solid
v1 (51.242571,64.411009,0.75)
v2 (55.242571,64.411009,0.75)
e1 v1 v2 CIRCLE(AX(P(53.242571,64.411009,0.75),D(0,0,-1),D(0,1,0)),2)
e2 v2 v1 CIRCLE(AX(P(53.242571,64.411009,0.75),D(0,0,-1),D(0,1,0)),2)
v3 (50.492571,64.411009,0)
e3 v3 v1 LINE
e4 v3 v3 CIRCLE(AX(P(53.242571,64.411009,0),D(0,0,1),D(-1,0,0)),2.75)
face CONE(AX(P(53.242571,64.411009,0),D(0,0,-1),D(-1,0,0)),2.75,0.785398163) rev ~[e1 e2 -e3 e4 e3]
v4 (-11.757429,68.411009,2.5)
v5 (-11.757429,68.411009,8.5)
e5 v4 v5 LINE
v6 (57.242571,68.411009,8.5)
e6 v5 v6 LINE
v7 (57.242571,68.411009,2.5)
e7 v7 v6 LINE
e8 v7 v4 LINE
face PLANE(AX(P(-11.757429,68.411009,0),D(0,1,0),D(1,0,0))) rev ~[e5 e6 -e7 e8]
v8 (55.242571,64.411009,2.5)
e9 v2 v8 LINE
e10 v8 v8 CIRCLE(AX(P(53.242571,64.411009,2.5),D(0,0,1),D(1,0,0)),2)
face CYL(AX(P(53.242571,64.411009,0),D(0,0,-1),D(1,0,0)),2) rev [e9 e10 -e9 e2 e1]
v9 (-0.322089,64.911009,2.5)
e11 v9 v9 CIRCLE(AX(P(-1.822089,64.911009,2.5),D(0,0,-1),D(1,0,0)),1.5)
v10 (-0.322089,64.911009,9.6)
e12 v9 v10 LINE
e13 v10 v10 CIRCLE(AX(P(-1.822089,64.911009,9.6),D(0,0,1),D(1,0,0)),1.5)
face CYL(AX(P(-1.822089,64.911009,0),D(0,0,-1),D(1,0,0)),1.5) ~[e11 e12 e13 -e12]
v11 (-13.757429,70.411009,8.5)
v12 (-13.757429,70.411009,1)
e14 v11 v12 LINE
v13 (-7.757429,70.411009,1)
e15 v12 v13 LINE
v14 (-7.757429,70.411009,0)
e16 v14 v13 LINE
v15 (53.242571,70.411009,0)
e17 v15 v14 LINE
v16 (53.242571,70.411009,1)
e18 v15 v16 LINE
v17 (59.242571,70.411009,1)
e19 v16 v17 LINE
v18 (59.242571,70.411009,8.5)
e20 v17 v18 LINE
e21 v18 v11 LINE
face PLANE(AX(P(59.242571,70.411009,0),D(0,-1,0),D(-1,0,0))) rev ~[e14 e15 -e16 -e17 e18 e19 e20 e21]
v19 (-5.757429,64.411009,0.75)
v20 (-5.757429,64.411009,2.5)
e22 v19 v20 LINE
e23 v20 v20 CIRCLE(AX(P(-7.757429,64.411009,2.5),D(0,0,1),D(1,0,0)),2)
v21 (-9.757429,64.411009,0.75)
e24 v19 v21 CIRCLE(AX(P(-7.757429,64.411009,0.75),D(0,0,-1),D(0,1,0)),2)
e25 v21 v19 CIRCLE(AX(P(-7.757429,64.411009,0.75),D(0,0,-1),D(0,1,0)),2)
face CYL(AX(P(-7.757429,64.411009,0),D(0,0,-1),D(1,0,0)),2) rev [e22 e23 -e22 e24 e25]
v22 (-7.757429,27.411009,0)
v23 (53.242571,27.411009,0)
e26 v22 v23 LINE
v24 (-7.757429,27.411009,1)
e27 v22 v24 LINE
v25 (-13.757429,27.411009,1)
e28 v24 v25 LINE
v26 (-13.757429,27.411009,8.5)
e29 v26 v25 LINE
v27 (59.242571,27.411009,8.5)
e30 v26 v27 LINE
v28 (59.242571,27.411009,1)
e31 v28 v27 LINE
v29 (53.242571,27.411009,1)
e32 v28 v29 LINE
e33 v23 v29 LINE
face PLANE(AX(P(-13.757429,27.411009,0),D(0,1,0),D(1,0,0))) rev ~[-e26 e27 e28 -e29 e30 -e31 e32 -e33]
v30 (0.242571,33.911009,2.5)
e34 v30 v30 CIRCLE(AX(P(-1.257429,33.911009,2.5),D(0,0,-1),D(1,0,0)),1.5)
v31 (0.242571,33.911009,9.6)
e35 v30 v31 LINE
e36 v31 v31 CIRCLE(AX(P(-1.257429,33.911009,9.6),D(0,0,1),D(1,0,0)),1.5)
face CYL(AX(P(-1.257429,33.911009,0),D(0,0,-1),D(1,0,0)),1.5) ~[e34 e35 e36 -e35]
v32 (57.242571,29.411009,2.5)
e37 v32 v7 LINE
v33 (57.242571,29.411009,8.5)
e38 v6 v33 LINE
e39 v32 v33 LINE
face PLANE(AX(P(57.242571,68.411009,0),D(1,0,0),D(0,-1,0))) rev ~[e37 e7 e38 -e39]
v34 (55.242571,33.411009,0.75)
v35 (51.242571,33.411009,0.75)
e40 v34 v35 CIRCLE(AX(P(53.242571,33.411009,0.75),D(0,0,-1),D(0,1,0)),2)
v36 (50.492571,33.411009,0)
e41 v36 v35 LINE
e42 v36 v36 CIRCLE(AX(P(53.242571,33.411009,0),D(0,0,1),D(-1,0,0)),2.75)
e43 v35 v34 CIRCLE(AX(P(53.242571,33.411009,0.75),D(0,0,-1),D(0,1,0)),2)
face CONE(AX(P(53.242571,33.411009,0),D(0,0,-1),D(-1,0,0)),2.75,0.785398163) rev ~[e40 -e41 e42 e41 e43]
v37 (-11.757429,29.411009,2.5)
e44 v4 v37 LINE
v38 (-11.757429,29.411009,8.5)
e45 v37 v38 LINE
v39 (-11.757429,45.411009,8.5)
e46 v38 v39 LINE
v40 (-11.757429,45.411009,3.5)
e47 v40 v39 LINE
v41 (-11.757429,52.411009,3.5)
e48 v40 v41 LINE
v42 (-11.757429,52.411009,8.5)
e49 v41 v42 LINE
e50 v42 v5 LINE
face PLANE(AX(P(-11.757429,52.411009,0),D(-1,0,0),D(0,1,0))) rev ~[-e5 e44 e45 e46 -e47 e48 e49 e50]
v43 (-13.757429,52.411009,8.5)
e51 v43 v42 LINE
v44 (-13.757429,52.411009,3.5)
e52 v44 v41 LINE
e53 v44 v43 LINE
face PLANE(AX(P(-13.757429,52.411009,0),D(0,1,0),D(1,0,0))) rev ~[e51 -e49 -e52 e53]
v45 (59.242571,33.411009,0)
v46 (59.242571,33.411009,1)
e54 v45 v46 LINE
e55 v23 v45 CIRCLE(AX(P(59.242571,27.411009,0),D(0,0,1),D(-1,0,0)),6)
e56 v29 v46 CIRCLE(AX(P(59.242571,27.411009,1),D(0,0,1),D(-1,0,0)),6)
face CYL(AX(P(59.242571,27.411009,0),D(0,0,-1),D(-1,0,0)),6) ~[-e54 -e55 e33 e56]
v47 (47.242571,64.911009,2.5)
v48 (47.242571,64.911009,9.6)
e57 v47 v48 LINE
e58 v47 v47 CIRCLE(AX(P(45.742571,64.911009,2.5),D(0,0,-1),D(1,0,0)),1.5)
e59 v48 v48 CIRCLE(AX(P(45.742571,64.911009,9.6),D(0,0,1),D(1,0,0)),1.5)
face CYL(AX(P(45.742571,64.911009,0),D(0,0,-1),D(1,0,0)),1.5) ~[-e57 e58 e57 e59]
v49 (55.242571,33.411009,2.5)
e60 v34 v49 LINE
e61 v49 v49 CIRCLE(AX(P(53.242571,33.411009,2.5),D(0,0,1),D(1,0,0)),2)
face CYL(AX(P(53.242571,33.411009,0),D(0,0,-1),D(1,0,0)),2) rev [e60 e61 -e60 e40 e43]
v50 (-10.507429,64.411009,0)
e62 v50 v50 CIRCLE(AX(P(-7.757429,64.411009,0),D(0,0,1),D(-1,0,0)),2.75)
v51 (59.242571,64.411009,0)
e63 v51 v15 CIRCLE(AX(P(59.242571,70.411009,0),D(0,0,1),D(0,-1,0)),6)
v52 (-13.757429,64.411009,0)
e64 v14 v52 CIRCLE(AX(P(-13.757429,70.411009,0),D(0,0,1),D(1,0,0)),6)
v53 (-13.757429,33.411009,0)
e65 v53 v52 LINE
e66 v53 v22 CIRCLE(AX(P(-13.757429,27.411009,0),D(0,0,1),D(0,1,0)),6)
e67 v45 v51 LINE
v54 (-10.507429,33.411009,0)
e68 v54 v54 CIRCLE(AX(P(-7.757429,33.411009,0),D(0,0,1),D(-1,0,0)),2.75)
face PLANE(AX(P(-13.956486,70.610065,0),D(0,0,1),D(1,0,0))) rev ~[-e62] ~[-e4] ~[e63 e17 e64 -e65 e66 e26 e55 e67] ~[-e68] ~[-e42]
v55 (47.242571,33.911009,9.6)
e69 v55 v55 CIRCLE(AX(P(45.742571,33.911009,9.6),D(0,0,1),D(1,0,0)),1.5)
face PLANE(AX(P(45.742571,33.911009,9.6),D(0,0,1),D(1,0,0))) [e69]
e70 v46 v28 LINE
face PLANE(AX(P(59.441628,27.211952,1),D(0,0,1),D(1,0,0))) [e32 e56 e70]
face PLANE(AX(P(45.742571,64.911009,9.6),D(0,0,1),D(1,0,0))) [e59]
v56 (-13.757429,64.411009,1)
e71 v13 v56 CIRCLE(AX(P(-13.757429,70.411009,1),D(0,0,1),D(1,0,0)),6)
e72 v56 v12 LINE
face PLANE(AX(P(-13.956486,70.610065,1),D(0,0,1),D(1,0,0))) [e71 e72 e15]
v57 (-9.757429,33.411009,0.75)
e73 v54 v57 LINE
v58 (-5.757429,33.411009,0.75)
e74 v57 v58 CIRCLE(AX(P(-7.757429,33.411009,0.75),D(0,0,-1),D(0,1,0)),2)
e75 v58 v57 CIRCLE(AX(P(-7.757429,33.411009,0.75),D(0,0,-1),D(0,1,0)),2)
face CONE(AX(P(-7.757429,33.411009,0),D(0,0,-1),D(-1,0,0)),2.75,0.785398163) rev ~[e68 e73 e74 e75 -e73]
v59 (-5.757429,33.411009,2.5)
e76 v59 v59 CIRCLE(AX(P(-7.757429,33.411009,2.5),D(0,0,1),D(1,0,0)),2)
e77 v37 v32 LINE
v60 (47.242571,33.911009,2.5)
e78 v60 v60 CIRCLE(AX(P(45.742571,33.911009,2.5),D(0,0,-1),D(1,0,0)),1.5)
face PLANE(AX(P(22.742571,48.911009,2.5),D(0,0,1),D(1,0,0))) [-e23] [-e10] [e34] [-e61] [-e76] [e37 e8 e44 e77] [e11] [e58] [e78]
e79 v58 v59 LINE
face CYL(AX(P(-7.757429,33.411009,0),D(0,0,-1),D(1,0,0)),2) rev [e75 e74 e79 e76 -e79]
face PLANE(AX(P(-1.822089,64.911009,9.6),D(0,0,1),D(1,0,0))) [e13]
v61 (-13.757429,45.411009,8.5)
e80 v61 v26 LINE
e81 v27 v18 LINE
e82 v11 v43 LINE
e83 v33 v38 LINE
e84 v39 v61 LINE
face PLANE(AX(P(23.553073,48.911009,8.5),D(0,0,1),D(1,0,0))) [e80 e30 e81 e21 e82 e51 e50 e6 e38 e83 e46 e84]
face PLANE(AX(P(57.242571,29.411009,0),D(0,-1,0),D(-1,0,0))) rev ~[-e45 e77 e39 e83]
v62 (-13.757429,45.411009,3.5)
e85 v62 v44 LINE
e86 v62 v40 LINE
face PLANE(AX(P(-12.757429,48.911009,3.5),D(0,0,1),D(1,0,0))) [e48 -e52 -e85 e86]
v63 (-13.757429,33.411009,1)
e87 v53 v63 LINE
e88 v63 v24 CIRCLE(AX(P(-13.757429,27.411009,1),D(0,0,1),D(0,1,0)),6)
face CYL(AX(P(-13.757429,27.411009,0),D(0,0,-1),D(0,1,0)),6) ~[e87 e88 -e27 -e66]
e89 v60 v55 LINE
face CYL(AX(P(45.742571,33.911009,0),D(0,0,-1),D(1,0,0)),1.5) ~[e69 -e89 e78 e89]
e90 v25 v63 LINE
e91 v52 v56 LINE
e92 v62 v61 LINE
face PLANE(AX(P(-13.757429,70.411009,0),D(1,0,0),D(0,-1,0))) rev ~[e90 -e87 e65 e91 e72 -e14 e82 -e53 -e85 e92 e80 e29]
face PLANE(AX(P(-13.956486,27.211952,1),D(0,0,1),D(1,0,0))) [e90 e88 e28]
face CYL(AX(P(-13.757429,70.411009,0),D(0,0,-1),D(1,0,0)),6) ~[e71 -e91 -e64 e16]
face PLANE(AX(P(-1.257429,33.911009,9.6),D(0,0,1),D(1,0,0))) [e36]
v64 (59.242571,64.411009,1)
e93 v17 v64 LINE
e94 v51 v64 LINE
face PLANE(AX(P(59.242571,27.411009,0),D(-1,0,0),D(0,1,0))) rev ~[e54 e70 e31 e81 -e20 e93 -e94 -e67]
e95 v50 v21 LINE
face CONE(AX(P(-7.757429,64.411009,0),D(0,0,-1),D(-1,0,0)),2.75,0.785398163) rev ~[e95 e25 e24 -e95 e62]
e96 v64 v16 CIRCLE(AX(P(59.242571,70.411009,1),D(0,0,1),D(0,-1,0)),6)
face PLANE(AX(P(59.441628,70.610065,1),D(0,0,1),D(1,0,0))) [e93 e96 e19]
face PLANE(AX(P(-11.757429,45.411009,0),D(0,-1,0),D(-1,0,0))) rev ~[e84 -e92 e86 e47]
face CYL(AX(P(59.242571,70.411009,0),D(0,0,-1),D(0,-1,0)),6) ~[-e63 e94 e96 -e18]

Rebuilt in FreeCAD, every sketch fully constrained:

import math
import FreeCAD as App
import Part
import Sketcher


def add_polygon(sketch, points):
    """Adds a closed chain of lines whose ends are joined by coincident constraints."""
    first, n = sketch.GeometryCount, len(points)
    for a, b in zip(points, points[1:] + points[:1]):
        sketch.addGeometry(Part.LineSegment(App.Vector(*a, 0), App.Vector(*b, 0)), False)
    for i in range(n):
        sketch.addConstraint(Sketcher.Constraint("Coincident", first + i, 2, first + (i + 1) % n, 1))

doc = App.newDocument("Part")
body = doc.addObject("PartDesign::Body", "Body")

# Sketch on XY plane
sketch1 = doc.addObject("Sketcher::SketchObject", "Sketch")
body.addObject(sketch1)
sketch1.AttachmentSupport = (doc.XY_Plane, [""])
sketch1.MapMode = "FlatFace"
add_polygon(sketch1, [(-13.757429, 27.411009), (59.242571, 27.411009), (59.242571, 70.411009), (-13.757429, 70.411009)])  # lines 0-3
sketch1.addGeometry(Part.Circle(App.Vector(-7.757429, 33.411009, 0), App.Vector(0, 0, 1), 2), False)  # 4
sketch1.addGeometry(Part.Circle(App.Vector(53.242571, 33.411009, 0), App.Vector(0, 0, 1), 2), False)  # 5
sketch1.addGeometry(Part.Circle(App.Vector(-7.757429, 64.411009, 0), App.Vector(0, 0, 1), 2), False)  # 6
sketch1.addGeometry(Part.Circle(App.Vector(53.242571, 64.411009, 0), App.Vector(0, 0, 1), 2), False)  # 7
sketch1.addConstraint([
    Sketcher.Constraint("Horizontal", 0),
    Sketcher.Constraint("Vertical", 1),
    Sketcher.Constraint("Horizontal", 2),
    Sketcher.Constraint("Vertical", 3),
    Sketcher.Constraint("Equal", 4, 5),
    Sketcher.Constraint("Equal", 5, 6),
    Sketcher.Constraint("Equal", 6, 7),
    Sketcher.Constraint("Horizontal", 4, 3, 5, 3),
    Sketcher.Constraint("Horizontal", 6, 3, 7, 3),
    Sketcher.Constraint("Vertical", 4, 3, 6, 3),
    Sketcher.Constraint("Vertical", 5, 3, 7, 3),
    Sketcher.Constraint("Diameter", 4, 4.0),
    Sketcher.Constraint("DistanceX", 0, 1, 0, 2, 73.0),
    Sketcher.Constraint("DistanceY", 1, 1, 1, 2, 43.0),
    Sketcher.Constraint("DistanceX", 4, 3, 5, 3, 61.0),
    Sketcher.Constraint("DistanceY", 4, 3, 6, 3, 31.0),
    Sketcher.Constraint("DistanceX", 5, 3, 0, 2, 6.0),
    Sketcher.Constraint("DistanceY", 0, 2, 5, 3, 6.0),
    Sketcher.Constraint("DistanceX", 4, 3, -1, 1, 7.757429),
    Sketcher.Constraint("DistanceY", -1, 1, 4, 3, 33.411009),
])
pad1 = doc.addObject("PartDesign::Pad", "Pad")
body.addObject(pad1)
pad1.Profile = sketch1
pad1.Length = 2.5

# Sketch on XY plane
sketch2 = doc.addObject("Sketcher::SketchObject", "Sketch001")
body.addObject(sketch2)
sketch2.AttachmentSupport = (doc.XY_Plane, [""])
sketch2.MapMode = "FlatFace"
add_polygon(sketch2, [(-11.757429, 52.411009), (-11.757429, 68.411009), (57.242571, 68.411009), (57.242571, 29.411009), (-11.757429, 29.411009), (-11.757429, 45.411009), (-13.757429, 45.411009), (-13.757429, 27.411009), (59.242571, 27.411009), (59.242571, 70.411009), (-13.757429, 70.411009), (-13.757429, 52.411009)])  # lines 0-11
sketch2.addConstraint([
    Sketcher.Constraint("Vertical", 0),
    Sketcher.Constraint("Horizontal", 1),
    Sketcher.Constraint("Vertical", 2),
    Sketcher.Constraint("Horizontal", 3),
    Sketcher.Constraint("Vertical", 4),
    Sketcher.Constraint("Horizontal", 5),
    Sketcher.Constraint("Vertical", 6),
    Sketcher.Constraint("Horizontal", 7),
    Sketcher.Constraint("Vertical", 8),
    Sketcher.Constraint("Horizontal", 9),
    Sketcher.Constraint("Vertical", 10),
    Sketcher.Constraint("Horizontal", 11),
    Sketcher.Constraint("Vertical", 0, 2, 3, 2),
    Sketcher.Constraint("Vertical", 6, 2, 9, 2),
    Sketcher.Constraint("Equal", 0, 4),
    Sketcher.Constraint("Equal", 6, 10),
    Sketcher.Constraint("DistanceX", 1, 1, 1, 2, 69.0),
    Sketcher.Constraint("DistanceX", 5, 2, 5, 1, 2.0),
    Sketcher.Constraint("DistanceX", 7, 1, 7, 2, 73.0),
    Sketcher.Constraint("DistanceY", 0, 1, 0, 2, 16.0),
    Sketcher.Constraint("DistanceY", 2, 2, 2, 1, 39.0),
    Sketcher.Constraint("DistanceY", 6, 2, 6, 1, 18.0),
    Sketcher.Constraint("DistanceX", 0, 2, -1, 1, 11.757429),
    Sketcher.Constraint("DistanceY", -1, 1, 0, 2, 68.411009),
])
pad2 = doc.addObject("PartDesign::Pad", "Pad001")
body.addObject(pad2)
pad2.Profile = sketch2
pad2.Length = 8.5

# Sketch on XY plane
sketch3 = doc.addObject("Sketcher::SketchObject", "Sketch002")
body.addObject(sketch3)
sketch3.AttachmentSupport = (doc.XY_Plane, [""])
sketch3.MapMode = "FlatFace"
sketch3.addGeometry([
    Part.Circle(App.Vector(-1.822089, 64.911009, 0), App.Vector(0, 0, 1), 1.5),
    Part.Circle(App.Vector(-1.257429, 33.911009, 0), App.Vector(0, 0, 1), 1.5),
    Part.Circle(App.Vector(45.742571, 33.911009, 0), App.Vector(0, 0, 1), 1.5),
    Part.Circle(App.Vector(45.742571, 64.911009, 0), App.Vector(0, 0, 1), 1.5),
], False)
sketch3.addConstraint([
    Sketcher.Constraint("Equal", 0, 1),
    Sketcher.Constraint("Equal", 1, 2),
    Sketcher.Constraint("Equal", 2, 3),
    Sketcher.Constraint("Horizontal", 1, 3, 2, 3),
    Sketcher.Constraint("Horizontal", 0, 3, 3, 3),
    Sketcher.Constraint("Vertical", 2, 3, 3, 3),
    Sketcher.Constraint("Diameter", 0, 3.0),
    Sketcher.Constraint("DistanceY", 1, 3, 0, 3, 31.0),
    Sketcher.Constraint("DistanceX", 1, 3, 2, 3, 47.0),
    Sketcher.Constraint("DistanceX", 0, 3, -1, 1, 1.822089),
    Sketcher.Constraint("DistanceY", -1, 1, 0, 3, 64.911009),
    Sketcher.Constraint("DistanceX", 1, 3, -1, 1, 1.257429),
])
pad3 = doc.addObject("PartDesign::Pad", "Pad002")
body.addObject(pad3)
pad3.Profile = sketch3
pad3.Length = 9.6

# Sketch on XY plane
sketch4 = doc.addObject("Sketcher::SketchObject", "Sketch003")
body.addObject(sketch4)
sketch4.AttachmentSupport = (doc.XY_Plane, [""])
sketch4.MapMode = "FlatFace"
add_polygon(sketch4, [(-13.757429, 52.411009), (-13.757429, 45.411009), (-11.757429, 45.411009), (-11.757429, 52.411009)])  # lines 0-3
sketch4.addConstraint([
    Sketcher.Constraint("Vertical", 0),
    Sketcher.Constraint("Horizontal", 1),
    Sketcher.Constraint("Vertical", 2),
    Sketcher.Constraint("Horizontal", 3),
    Sketcher.Constraint("DistanceX", 1, 1, 1, 2, 2.0),
    Sketcher.Constraint("DistanceY", 0, 2, 0, 1, 7.0),
    Sketcher.Constraint("DistanceX", 0, 2, -1, 1, 13.757429),
    Sketcher.Constraint("DistanceY", -1, 1, 0, 2, 45.411009),
])
pad4 = doc.addObject("PartDesign::Pad", "Pad003")
body.addObject(pad4)
pad4.Profile = sketch4
pad4.Length = 3.5

# Sketch on XY plane
sketch5 = doc.addObject("Sketcher::SketchObject", "Sketch004")
body.addObject(sketch5)
sketch5.AttachmentSupport = (doc.XY_Plane, [""])
sketch5.MapMode = "FlatFace"
sketch5.addGeometry([
    Part.Circle(App.Vector(53.242571, 64.411009, 0), App.Vector(0, 0, 1), 1.5),
    Part.Circle(App.Vector(53.242571, 33.411009, 0), App.Vector(0, 0, 1), 1.5),
    Part.Circle(App.Vector(-7.757429, 33.411009, 0), App.Vector(0, 0, 1), 1.5),
    Part.Circle(App.Vector(-7.757429, 64.411009, 0), App.Vector(0, 0, 1), 1.5),
], False)
sketch5.addConstraint([
    Sketcher.Constraint("Equal", 0, 1),
    Sketcher.Constraint("Equal", 1, 2),
    Sketcher.Constraint("Equal", 2, 3),
    Sketcher.Constraint("Horizontal", 1, 3, 2, 3),
    Sketcher.Constraint("Horizontal", 0, 3, 3, 3),
    Sketcher.Constraint("Vertical", 0, 3, 1, 3),
    Sketcher.Constraint("Vertical", 2, 3, 3, 3),
    Sketcher.Constraint("Diameter", 0, 3.0),
    Sketcher.Constraint("DistanceY", 1, 3, 0, 3, 31.0),
    Sketcher.Constraint("DistanceX", 2, 3, 1, 3, 61.0),
    Sketcher.Constraint("DistanceX", -1, 1, 0, 3, 53.242571),
    Sketcher.Constraint("DistanceY", -1, 1, 0, 3, 64.411009),
])
doc.recompute()
hole = doc.addObject("PartDesign::Hole", "Hole")
body.addObject(hole)
hole.Profile = sketch5
hole.ThreadType = "None"
hole.Diameter = 3
hole.DepthType = "ThroughAll"
hole.HoleCutType = "Countersink"
hole.HoleCutDiameter = 5.5
hole.HoleCutCountersinkAngle = 90
hole.Reversed = True

# Sketch on XY plane
sketch6 = doc.addObject("Sketcher::SketchObject", "Sketch005")
body.addObject(sketch6)
sketch6.AttachmentSupport = (doc.XY_Plane, [""])
sketch6.MapMode = "FlatFace"
sketch6.addGeometry([
    Part.ArcOfCircle(Part.Circle(App.Vector(-13.757429, 70.411009, 0), App.Vector(0, 0, 1), 6), math.radians(0), math.radians(270)),  # 0
    Part.LineSegment(App.Vector(-13.757429, 64.411009, 0), App.Vector(-13.757429, 70.411009, 0)),  # 1
    Part.LineSegment(App.Vector(-13.757429, 70.411009, 0), App.Vector(-7.757429, 70.411009, 0)),  # 2
    Part.ArcOfCircle(Part.Circle(App.Vector(59.242571, 70.411009, 0), App.Vector(0, 0, 1), 6), math.radians(-90), math.radians(180)),  # 3
    Part.LineSegment(App.Vector(53.242571, 70.411009, 0), App.Vector(59.242571, 70.411009, 0)),  # 4
    Part.LineSegment(App.Vector(59.242571, 70.411009, 0), App.Vector(59.242571, 64.411009, 0)),  # 5
    Part.LineSegment(App.Vector(59.242571, 27.411009, 0), App.Vector(53.242571, 27.411009, 0)),  # 6
    Part.ArcOfCircle(Part.Circle(App.Vector(59.242571, 27.411009, 0), App.Vector(0, 0, 1), 6), math.radians(-180), math.radians(90)),  # 7
    Part.LineSegment(App.Vector(59.242571, 33.411009, 0), App.Vector(59.242571, 27.411009, 0)),  # 8
    Part.LineSegment(App.Vector(-13.757429, 27.411009, 0), App.Vector(-13.757429, 33.411009, 0)),  # 9
    Part.ArcOfCircle(Part.Circle(App.Vector(-13.757429, 27.411009, 0), App.Vector(0, 0, 1), 6), math.radians(90), math.radians(360)),  # 10
    Part.LineSegment(App.Vector(-7.757429, 27.411009, 0), App.Vector(-13.757429, 27.411009, 0)),  # 11
], False)
sketch6.addConstraint([
    Sketcher.Constraint("Coincident", 0, 2, 1, 1),
    Sketcher.Constraint("Coincident", 1, 2, 2, 1),
    Sketcher.Constraint("Coincident", 2, 2, 0, 1),
    Sketcher.Constraint("Coincident", 3, 2, 4, 1),
    Sketcher.Constraint("Coincident", 4, 2, 5, 1),
    Sketcher.Constraint("Coincident", 5, 2, 3, 1),
    Sketcher.Constraint("Coincident", 6, 2, 7, 1),
    Sketcher.Constraint("Coincident", 7, 2, 8, 1),
    Sketcher.Constraint("Coincident", 8, 2, 6, 1),
    Sketcher.Constraint("Coincident", 9, 2, 10, 1),
    Sketcher.Constraint("Coincident", 10, 2, 11, 1),
    Sketcher.Constraint("Coincident", 11, 2, 9, 1),
    Sketcher.Constraint("Vertical", 1),
    Sketcher.Constraint("Horizontal", 2),
    Sketcher.Constraint("Horizontal", 4),
    Sketcher.Constraint("Vertical", 5),
    Sketcher.Constraint("Horizontal", 6),
    Sketcher.Constraint("Vertical", 8),
    Sketcher.Constraint("Vertical", 9),
    Sketcher.Constraint("Horizontal", 11),
    Sketcher.Constraint("Coincident", 1, 2, 0, 3),
    Sketcher.Constraint("Coincident", 4, 2, 3, 3),
    Sketcher.Constraint("Coincident", 8, 2, 7, 3),
    Sketcher.Constraint("Coincident", 11, 2, 10, 3),
    Sketcher.Constraint("Equal", 0, 3),
    Sketcher.Constraint("Equal", 3, 7),
    Sketcher.Constraint("Equal", 7, 10),
    Sketcher.Constraint("Horizontal", 0, 3, 3, 3),
    Sketcher.Constraint("Horizontal", 7, 3, 10, 3),
    Sketcher.Constraint("Vertical", 3, 3, 7, 3),
    Sketcher.Constraint("Vertical", 0, 3, 10, 3),
    Sketcher.Constraint("Radius", 0, 6.0),
    Sketcher.Constraint("DistanceX", 0, 3, 3, 3, 73.0),
    Sketcher.Constraint("DistanceY", 7, 3, 3, 3, 43.0),
    Sketcher.Constraint("DistanceX", 0, 3, -1, 1, 13.757429),
    Sketcher.Constraint("DistanceY", -1, 1, 0, 3, 70.411009),
])
pad5 = doc.addObject("PartDesign::Pad", "Pad004")
body.addObject(pad5)
pad5.Profile = sketch6
pad5.Length = 1

doc.recompute()
